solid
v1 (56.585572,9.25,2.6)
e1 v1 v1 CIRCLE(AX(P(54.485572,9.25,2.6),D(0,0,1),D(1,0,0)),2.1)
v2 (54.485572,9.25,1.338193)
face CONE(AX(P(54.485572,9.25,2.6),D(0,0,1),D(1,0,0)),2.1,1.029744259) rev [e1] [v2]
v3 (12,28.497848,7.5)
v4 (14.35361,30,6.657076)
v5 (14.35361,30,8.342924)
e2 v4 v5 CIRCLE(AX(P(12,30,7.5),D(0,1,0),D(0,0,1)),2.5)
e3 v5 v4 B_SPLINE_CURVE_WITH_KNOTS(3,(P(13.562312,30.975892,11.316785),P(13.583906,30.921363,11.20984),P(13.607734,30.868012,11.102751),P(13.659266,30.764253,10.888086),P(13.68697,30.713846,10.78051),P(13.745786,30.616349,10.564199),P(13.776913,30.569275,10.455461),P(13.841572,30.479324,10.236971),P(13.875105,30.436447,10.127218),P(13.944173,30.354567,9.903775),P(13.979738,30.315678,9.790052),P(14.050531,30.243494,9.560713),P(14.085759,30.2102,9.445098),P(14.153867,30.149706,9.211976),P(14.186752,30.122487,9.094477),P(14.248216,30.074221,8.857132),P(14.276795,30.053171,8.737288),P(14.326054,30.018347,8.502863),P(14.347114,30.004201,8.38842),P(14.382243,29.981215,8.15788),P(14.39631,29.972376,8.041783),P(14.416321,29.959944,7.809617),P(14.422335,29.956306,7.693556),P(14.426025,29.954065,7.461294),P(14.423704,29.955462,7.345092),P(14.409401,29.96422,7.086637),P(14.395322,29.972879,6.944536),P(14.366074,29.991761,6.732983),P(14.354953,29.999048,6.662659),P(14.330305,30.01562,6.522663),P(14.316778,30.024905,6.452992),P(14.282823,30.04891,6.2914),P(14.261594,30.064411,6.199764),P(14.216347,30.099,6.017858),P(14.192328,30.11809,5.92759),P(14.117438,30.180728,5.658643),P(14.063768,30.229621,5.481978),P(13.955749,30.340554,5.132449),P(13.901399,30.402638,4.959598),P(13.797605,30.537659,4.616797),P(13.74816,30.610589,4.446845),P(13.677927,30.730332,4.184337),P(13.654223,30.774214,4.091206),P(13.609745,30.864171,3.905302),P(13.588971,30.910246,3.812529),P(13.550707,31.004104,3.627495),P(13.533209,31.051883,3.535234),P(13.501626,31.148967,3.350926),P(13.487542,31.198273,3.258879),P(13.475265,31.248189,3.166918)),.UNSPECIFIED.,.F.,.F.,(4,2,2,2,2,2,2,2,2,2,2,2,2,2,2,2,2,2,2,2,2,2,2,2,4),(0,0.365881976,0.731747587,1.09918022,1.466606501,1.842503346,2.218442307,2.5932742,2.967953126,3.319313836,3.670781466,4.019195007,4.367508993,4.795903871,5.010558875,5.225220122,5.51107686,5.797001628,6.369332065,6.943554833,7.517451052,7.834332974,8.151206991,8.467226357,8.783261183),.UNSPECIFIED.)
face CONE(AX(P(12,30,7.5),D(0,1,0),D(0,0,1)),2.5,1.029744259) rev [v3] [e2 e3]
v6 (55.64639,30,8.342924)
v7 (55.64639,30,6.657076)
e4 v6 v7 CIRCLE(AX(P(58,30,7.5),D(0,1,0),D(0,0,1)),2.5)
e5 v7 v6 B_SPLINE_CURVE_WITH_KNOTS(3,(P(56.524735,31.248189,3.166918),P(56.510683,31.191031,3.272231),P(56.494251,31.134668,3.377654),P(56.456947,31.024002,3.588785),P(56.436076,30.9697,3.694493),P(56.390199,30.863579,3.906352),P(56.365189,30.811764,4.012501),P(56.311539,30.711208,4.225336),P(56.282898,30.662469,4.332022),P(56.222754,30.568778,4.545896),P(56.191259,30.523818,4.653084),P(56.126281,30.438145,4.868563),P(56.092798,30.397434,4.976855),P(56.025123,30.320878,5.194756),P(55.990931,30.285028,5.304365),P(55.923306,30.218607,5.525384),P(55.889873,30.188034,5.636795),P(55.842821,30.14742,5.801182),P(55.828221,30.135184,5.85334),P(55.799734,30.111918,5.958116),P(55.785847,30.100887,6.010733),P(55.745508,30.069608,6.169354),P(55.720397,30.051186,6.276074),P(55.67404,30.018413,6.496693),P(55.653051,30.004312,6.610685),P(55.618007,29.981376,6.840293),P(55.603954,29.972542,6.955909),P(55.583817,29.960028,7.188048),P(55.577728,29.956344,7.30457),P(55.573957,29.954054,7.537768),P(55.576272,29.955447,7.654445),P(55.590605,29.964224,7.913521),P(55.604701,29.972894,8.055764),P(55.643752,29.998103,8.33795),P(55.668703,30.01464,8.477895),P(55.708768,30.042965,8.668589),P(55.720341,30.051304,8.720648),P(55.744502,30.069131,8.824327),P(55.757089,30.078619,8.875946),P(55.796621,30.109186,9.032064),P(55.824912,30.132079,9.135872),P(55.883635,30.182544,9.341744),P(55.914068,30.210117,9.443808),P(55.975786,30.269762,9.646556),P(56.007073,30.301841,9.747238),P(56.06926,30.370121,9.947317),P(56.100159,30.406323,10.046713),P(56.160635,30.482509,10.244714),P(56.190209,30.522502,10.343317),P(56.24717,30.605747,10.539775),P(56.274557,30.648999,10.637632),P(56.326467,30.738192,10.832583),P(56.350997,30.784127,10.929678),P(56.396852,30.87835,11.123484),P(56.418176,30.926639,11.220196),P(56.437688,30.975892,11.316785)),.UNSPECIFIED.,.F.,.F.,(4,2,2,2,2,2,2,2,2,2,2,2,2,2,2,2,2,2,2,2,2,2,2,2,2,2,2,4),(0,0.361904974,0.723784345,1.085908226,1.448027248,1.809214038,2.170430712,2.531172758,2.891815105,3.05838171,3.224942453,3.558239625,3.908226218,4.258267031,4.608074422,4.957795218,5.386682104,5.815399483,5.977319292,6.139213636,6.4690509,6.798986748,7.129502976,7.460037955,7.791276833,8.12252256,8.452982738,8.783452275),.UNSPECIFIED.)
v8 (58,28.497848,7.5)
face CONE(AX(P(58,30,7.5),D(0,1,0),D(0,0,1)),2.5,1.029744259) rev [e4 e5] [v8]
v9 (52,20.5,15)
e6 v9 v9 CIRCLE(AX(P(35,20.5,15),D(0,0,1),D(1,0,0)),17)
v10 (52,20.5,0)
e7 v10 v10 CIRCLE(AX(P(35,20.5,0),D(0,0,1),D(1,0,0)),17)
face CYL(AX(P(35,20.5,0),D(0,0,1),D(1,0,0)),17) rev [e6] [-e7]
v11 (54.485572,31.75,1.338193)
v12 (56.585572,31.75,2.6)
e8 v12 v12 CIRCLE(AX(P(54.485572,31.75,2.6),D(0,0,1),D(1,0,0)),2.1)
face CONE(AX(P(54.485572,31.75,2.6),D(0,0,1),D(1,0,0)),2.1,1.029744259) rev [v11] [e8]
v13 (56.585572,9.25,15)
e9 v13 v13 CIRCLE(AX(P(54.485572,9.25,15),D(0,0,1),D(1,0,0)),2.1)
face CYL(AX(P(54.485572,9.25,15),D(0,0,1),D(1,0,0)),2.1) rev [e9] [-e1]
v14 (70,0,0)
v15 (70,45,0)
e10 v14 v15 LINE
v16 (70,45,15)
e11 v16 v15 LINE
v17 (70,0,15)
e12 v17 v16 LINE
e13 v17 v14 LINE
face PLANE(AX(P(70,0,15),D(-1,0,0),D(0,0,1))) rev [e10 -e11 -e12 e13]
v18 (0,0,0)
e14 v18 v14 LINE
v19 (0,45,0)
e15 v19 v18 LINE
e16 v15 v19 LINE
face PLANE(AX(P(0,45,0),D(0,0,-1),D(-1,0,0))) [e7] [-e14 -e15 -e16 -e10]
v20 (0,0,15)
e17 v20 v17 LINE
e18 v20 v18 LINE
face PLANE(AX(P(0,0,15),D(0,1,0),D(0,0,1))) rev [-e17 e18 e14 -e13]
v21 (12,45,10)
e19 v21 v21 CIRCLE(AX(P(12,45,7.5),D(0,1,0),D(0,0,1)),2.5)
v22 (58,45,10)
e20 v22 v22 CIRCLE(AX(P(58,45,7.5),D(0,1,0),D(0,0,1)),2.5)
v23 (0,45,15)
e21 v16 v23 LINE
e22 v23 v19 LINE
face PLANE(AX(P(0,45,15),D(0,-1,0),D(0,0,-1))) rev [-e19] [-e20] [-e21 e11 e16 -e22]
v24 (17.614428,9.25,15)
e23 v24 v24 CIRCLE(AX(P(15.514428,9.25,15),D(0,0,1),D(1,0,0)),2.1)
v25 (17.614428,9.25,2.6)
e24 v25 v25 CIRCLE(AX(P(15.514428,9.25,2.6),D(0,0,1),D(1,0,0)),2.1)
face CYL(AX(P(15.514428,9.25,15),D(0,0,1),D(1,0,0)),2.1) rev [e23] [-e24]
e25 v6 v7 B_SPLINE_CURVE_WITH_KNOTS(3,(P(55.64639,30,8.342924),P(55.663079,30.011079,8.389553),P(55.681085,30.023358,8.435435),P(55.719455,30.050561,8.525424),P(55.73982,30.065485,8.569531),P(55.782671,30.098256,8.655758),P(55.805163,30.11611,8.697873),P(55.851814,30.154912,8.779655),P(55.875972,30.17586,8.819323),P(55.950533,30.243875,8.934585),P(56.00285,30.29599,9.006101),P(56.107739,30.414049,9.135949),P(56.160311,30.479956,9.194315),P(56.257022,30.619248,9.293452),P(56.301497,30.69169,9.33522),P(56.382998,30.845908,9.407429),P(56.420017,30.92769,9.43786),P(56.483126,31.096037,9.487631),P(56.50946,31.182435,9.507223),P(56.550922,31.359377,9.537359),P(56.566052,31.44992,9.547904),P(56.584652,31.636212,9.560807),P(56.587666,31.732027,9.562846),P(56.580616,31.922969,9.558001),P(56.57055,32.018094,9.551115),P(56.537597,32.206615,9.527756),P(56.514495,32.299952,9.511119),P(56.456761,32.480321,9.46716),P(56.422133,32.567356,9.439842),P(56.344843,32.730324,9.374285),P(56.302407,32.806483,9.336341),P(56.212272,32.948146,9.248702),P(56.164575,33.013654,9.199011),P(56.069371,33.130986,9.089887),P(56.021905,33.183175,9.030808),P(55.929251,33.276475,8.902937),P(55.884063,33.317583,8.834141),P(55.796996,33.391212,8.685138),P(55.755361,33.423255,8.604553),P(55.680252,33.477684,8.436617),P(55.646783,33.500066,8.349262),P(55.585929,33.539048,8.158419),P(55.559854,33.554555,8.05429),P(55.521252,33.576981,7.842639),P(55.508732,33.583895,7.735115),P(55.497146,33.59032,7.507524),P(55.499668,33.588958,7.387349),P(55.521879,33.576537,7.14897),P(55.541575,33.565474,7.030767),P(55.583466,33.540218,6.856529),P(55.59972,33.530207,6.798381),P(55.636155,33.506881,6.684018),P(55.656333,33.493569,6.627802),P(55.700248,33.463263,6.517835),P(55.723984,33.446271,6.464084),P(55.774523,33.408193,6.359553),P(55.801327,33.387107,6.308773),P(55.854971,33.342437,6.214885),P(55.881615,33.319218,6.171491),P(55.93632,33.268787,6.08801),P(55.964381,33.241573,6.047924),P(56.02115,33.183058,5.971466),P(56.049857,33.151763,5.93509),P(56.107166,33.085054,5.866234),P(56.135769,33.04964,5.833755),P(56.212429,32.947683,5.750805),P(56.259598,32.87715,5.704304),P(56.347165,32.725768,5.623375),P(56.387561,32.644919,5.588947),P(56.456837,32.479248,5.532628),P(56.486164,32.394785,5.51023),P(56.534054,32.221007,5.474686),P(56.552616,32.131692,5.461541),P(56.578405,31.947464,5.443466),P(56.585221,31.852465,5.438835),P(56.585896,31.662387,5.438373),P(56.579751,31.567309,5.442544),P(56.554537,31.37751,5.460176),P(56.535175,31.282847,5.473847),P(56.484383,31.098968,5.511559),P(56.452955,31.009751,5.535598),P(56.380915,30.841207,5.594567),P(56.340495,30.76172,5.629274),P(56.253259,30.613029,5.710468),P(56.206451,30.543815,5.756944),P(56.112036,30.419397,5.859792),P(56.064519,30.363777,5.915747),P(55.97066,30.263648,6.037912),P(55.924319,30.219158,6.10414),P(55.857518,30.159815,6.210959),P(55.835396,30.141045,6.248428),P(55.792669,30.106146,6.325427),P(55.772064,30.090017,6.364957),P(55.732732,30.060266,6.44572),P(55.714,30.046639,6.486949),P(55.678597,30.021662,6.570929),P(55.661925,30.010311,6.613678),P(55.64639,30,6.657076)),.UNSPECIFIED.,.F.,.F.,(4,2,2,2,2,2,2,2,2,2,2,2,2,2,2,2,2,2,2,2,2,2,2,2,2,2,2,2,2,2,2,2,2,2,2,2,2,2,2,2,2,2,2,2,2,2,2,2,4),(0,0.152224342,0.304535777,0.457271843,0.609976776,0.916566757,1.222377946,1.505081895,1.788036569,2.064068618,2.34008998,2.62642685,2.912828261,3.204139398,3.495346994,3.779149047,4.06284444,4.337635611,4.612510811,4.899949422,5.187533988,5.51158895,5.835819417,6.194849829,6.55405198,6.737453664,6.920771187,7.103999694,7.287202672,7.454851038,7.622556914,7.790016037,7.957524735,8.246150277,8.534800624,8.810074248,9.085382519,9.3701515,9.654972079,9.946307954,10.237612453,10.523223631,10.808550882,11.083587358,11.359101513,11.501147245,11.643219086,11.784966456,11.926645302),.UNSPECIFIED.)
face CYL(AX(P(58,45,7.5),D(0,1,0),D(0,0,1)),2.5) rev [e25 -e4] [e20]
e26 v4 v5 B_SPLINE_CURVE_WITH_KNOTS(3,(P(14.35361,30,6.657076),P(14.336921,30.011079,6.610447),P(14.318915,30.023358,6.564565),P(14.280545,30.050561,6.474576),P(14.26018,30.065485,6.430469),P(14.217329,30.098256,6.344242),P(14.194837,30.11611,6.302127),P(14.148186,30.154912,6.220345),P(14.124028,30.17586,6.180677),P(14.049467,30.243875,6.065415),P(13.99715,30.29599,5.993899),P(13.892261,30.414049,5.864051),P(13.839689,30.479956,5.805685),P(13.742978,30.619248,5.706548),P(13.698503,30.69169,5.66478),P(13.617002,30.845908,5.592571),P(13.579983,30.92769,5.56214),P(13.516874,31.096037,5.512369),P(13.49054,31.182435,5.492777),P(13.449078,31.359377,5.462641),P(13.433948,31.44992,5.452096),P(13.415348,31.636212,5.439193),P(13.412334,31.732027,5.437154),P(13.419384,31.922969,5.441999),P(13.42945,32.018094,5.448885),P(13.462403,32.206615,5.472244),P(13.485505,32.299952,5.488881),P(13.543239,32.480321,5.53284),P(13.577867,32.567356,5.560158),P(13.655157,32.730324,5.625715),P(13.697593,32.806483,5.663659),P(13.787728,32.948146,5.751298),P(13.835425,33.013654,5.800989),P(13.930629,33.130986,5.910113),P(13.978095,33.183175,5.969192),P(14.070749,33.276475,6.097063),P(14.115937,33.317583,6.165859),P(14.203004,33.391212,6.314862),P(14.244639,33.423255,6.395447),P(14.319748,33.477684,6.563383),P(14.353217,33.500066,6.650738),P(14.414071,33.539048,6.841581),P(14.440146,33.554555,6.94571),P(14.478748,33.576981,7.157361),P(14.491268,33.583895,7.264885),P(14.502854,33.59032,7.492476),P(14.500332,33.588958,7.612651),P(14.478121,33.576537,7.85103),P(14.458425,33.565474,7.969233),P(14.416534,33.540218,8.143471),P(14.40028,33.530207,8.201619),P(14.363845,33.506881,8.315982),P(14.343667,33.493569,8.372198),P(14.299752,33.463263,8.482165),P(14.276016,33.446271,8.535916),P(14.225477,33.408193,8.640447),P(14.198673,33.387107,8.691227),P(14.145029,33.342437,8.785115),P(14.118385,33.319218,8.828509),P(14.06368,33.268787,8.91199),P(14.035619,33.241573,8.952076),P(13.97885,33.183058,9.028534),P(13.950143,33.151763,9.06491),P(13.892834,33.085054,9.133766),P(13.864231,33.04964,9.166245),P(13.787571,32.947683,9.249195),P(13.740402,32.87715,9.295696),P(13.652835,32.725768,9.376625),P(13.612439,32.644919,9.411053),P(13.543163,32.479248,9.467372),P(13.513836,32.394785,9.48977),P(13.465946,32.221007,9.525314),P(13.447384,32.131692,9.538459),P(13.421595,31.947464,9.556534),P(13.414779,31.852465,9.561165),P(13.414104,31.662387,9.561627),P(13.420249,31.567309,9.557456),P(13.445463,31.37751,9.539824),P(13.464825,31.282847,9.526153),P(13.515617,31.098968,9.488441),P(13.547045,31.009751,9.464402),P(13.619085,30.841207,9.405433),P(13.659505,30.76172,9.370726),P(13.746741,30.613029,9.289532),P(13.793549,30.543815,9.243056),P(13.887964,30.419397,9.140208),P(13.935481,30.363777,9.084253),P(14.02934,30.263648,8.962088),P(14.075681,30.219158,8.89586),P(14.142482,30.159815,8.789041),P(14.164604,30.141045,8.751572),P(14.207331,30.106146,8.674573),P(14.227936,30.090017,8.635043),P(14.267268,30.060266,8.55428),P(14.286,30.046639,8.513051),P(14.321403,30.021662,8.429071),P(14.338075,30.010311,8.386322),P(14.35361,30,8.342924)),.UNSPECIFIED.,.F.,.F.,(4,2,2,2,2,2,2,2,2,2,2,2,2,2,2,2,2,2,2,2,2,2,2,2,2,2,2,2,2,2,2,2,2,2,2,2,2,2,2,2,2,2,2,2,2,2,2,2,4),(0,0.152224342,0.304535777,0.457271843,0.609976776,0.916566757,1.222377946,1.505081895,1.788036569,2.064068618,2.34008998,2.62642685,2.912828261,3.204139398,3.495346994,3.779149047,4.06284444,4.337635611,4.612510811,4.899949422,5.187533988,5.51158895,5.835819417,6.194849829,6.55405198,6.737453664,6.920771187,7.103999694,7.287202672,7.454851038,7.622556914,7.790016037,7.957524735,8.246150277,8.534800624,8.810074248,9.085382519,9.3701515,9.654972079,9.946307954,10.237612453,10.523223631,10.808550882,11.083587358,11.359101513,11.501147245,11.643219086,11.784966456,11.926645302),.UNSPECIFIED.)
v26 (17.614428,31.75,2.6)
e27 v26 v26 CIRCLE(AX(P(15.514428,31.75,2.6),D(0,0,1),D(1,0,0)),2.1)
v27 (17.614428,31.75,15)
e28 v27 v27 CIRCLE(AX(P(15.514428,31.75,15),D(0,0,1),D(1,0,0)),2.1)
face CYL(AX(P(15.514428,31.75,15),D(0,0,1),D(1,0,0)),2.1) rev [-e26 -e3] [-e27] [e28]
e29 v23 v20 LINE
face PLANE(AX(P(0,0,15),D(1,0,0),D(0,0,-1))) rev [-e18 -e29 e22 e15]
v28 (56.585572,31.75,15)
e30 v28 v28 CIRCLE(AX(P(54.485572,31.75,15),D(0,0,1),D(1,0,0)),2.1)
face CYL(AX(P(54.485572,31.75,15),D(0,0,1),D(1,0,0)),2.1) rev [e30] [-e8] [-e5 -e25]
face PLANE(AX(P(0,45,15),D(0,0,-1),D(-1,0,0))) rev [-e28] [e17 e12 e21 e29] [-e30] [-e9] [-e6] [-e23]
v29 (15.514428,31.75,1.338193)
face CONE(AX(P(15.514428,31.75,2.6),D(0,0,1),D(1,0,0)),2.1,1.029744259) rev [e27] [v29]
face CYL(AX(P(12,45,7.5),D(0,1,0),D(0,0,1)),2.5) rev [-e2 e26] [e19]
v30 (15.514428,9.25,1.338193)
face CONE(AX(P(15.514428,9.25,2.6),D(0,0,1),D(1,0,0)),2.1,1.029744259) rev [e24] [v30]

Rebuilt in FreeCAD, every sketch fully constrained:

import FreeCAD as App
import Part
import Sketcher
from FreeCAD import Vector

doc = App.newDocument("Part")
body = doc.addObject("PartDesign::Body", "Body")

sketch1 = body.newObject("Sketcher::SketchObject", "Sketch")
sketch1.AttachmentSupport = (doc.getObject("XY_Plane"), [""])
sketch1.MapMode = "FlatFace"
sketch1.addGeometry([
    Part.LineSegment(Vector(0, 45, 0), Vector(0, 0, 0)),
    Part.LineSegment(Vector(0, 0, 0), Vector(70, 0, 0)),
    Part.LineSegment(Vector(70, 0, 0), Vector(70, 45, 0)),
    Part.LineSegment(Vector(70, 45, 0), Vector(0, 45, 0)),
], False)
sketch1.addConstraint([
    Sketcher.Constraint("Coincident", 0, 2, 1, 1),
    Sketcher.Constraint("Coincident", 1, 2, 2, 1),
    Sketcher.Constraint("Coincident", 2, 2, 3, 1),
    Sketcher.Constraint("Coincident", 3, 2, 0, 1),
    Sketcher.Constraint("Vertical", 0),
    Sketcher.Constraint("Horizontal", 1),
    Sketcher.Constraint("Vertical", 2),
    Sketcher.Constraint("Horizontal", 3),
    Sketcher.Constraint("Coincident", 0, 2, -1, 1),
    Sketcher.Constraint("DistanceX", 1, 1, 1, 2, 70.0),
    Sketcher.Constraint("DistanceY", 0, 2, 0, 1, 45.0),
])
pad1 = body.newObject("PartDesign::Pad", "Pad")
pad1.Profile = sketch1
pad1.Length = 15

sketch2 = body.newObject("Sketcher::SketchObject", "Sketch001")
sketch2.AttachmentSupport = (doc.getObject("XY_Plane"), [""])
sketch2.MapMode = "FlatFace"
sketch2.AttachmentOffset = App.Placement(Vector(0, 0, 15), App.Rotation())
sketch2.addGeometry(Part.Circle(Vector(35, 20, 0), Vector(0, 0, 1), 17), False)
sketch2.addConstraint([
    Sketcher.Constraint("Diameter", 0, 34.0),
    Sketcher.Constraint("DistanceX", -1, 1, 0, 3, 35.0),
    Sketcher.Constraint("DistanceY", -1, 1, 0, 3, 20.5),
])
pocket1 = body.newObject("PartDesign::Pocket", "Pocket")
pocket1.Profile = sketch2
pocket1.Type = "ThroughAll"

sketch3 = body.newObject("Sketcher::SketchObject", "Sketch002")
sketch3.AttachmentSupport = (doc.getObject("XZ_Plane"), [""])
sketch3.MapMode = "FlatFace"
sketch3.AttachmentOffset = App.Placement(Vector(0, 0, -45), App.Rotation())
sketch3.addGeometry([
    Part.Circle(Vector(12, 7.5, 0), Vector(0, 0, 1), 2.5),
    Part.Circle(Vector(58, 7.5, 0), Vector(0, 0, 1), 2.5),
], False)
sketch3.addConstraint([
    Sketcher.Constraint("Equal", 0, 1),
    Sketcher.Constraint("Horizontal", 0, 3, 1, 3),
    Sketcher.Constraint("Diameter", 0, 5.0),
    Sketcher.Constraint("DistanceX", -1, 1, 0, 3, 12.0),
    Sketcher.Constraint("DistanceX", -1, 1, 1, 3, 58.0),
    Sketcher.Constraint("DistanceY", -1, 1, 0, 3, 7.5),
])
doc.recompute()
hole = body.newObject("PartDesign::Hole", "Hole")
hole.Profile = sketch3
hole.ThreadType = "None"
hole.Diameter = 5
hole.DepthType = "Dimension"
hole.Depth = 15
hole.DrillPoint = "Angled"
hole.DrillPointAngle = 118
hole.Reversed = True

sketch4 = body.newObject("Sketcher::SketchObject", "Sketch003")
sketch4.AttachmentSupport = (doc.getObject("XY_Plane"), [""])
sketch4.MapMode = "FlatFace"
sketch4.AttachmentOffset = App.Placement(Vector(0, 0, 15), App.Rotation())
sketch4.addGeometry([
    Part.Circle(Vector(54.5, 31.8, 0), Vector(0, 0, 1), 2.1),
    Part.Circle(Vector(15.5, 31.8, 0), Vector(0, 0, 1), 2.1),
    Part.Circle(Vector(54.5, 9.2, 0), Vector(0, 0, 1), 2.1),
    Part.Circle(Vector(15.5, 9.2, 0), Vector(0, 0, 1), 2.1),
], False)
sketch4.addConstraint([
    Sketcher.Constraint("Equal", 0, 1),
    Sketcher.Constraint("Equal", 1, 2),
    Sketcher.Constraint("Equal", 2, 3),
    Sketcher.Constraint("Horizontal", 0, 3, 1, 3),
    Sketcher.Constraint("Horizontal", 2, 3, 3, 3),
    Sketcher.Constraint("Vertical", 0, 3, 2, 3),
    Sketcher.Constraint("Vertical", 1, 3, 3, 3),
    Sketcher.Constraint("Diameter", 0, 4.2),
    Sketcher.Constraint("DistanceY", 2, 3, 0, 3, 22.5),
    Sketcher.Constraint("DistanceY", -1, 1, 0, 3, 31.75),
    Sketcher.Constraint("DistanceX", -1, 1, 0, 3, 54.485572),
    Sketcher.Constraint("DistanceX", -1, 1, 1, 3, 15.514428),
])
doc.recompute()
hole2 = body.newObject("PartDesign::Hole", "Hole001")
hole2.Profile = sketch4
hole2.ThreadType = "None"
hole2.Diameter = 4.2
hole2.DepthType = "Dimension"
hole2.Depth = 12.4
hole2.DrillPoint = "Angled"
hole2.DrillPointAngle = 118

doc.recompute()
